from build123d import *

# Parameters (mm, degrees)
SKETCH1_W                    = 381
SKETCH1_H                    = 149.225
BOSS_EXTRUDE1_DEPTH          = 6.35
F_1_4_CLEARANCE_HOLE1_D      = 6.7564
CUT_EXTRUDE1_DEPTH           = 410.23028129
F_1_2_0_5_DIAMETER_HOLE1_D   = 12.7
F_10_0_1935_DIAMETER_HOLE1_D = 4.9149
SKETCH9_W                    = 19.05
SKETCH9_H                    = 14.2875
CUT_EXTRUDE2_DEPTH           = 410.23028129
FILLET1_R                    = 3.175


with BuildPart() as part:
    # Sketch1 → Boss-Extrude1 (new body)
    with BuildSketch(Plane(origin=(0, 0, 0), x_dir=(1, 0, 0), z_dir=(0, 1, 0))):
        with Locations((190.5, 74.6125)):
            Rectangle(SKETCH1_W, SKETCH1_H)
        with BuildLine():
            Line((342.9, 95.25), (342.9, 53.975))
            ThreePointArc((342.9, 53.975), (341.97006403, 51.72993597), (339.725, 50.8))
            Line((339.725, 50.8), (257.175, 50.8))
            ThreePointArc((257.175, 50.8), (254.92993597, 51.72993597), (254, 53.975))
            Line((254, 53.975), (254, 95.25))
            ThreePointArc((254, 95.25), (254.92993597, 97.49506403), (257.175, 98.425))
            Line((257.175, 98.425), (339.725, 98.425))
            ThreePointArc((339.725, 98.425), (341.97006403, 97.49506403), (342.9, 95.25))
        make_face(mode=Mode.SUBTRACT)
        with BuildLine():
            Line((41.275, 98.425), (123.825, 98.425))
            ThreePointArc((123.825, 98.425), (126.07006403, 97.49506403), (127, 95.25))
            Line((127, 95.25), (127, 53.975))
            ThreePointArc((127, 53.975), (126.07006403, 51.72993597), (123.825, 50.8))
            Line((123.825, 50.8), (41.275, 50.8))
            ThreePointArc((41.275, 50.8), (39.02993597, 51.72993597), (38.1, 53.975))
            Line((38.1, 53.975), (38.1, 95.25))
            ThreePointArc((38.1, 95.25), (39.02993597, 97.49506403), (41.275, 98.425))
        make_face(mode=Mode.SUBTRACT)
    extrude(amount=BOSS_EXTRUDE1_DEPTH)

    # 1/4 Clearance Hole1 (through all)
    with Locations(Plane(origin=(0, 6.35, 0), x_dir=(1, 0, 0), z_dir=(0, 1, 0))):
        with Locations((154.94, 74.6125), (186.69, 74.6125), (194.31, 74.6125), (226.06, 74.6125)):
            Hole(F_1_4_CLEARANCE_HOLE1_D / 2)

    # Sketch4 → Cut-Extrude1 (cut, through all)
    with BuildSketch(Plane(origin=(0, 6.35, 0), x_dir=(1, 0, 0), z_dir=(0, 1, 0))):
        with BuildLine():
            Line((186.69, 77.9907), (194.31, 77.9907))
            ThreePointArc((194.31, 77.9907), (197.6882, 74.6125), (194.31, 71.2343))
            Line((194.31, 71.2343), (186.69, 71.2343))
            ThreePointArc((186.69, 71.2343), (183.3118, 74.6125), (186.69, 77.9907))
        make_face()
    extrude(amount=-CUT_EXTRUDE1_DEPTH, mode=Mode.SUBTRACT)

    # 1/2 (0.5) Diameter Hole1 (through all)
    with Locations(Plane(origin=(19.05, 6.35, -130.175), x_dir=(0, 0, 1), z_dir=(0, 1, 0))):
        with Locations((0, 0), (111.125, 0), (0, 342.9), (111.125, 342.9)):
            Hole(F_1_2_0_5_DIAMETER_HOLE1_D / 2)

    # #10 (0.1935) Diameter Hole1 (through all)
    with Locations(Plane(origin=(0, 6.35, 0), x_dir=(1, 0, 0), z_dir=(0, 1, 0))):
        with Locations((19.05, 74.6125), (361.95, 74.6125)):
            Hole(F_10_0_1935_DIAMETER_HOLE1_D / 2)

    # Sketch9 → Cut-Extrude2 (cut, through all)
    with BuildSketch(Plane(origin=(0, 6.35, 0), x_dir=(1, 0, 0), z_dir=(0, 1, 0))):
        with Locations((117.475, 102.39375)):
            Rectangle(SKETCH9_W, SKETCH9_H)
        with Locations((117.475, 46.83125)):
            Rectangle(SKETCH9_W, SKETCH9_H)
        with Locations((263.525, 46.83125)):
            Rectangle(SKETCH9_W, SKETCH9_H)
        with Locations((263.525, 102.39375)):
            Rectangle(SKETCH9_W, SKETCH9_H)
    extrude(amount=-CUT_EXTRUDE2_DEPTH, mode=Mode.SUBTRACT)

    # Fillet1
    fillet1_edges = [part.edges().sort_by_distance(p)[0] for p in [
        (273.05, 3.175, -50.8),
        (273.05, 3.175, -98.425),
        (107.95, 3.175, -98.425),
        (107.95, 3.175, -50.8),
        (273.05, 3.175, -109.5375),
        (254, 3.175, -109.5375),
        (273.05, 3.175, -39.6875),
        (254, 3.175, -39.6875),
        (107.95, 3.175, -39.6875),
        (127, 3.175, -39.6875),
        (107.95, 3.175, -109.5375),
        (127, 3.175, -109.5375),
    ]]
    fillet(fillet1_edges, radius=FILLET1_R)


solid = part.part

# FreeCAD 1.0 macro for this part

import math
import FreeCAD as App
import Part
import Sketcher
from FreeCAD import Vector
Q = App.Units.Quantity


def edges_at(feature, points):
    """Names of the edges that pass closest to the given points."""
    edges = feature.Shape.Edges
    near = lambda p: min(range(len(edges)), key=lambda i: edges[i].distToShape(Part.Vertex(*p))[0])
    return sorted({f"Edge{near(p) + 1}" for p in points})

doc = App.newDocument("Part")
body = doc.addObject("PartDesign::Body", "Body")

# Sketch on XZ plane
sketch1 = body.newObject("Sketcher::SketchObject", "Sketch")
sketch1.AttachmentSupport = (doc.getObject("XZ_Plane"), [""])
sketch1.MapMode = "FlatFace"
sketch1.addGeometry([
    Part.LineSegment(Vector(0, -149.225, 0), Vector(0, 0, 0)),  # 0
    Part.LineSegment(Vector(0, 0, 0), Vector(381, 0, 0)),  # 1
    Part.LineSegment(Vector(381, 0, 0), Vector(381, -149.225, 0)),  # 2
    Part.LineSegment(Vector(381, -149.225, 0), Vector(0, -149.225, 0)),  # 3
    Part.ArcOfCircle(Part.Circle(Vector(339.725, -95.25, 0), Vector(0, 0, 1), 3.175), math.radians(-90), math.radians(0)),  # 4
    Part.LineSegment(Vector(342.9, -95.25, 0), Vector(342.9, -53.975, 0)),  # 5
    Part.ArcOfCircle(Part.Circle(Vector(339.725, -53.975, 0), Vector(0, 0, 1), 3.175), math.radians(0), math.radians(90)),  # 6
    Part.LineSegment(Vector(339.725, -50.8, 0), Vector(257.175, -50.8, 0)),  # 7
    Part.ArcOfCircle(Part.Circle(Vector(257.175, -53.975, 0), Vector(0, 0, 1), 3.175), math.radians(90), math.radians(180)),  # 8
    Part.LineSegment(Vector(254, -53.975, 0), Vector(254, -95.25, 0)),  # 9
    Part.ArcOfCircle(Part.Circle(Vector(257.175, -95.25, 0), Vector(0, 0, 1), 3.175), math.radians(-180), math.radians(-90)),  # 10
    Part.LineSegment(Vector(257.175, -98.425, 0), Vector(339.725, -98.425, 0)),  # 11
    Part.ArcOfCircle(Part.Circle(Vector(41.275, -95.25, 0), Vector(0, 0, 1), 3.175), math.radians(-180), math.radians(-90)),  # 12
    Part.LineSegment(Vector(41.275, -98.425, 0), Vector(123.825, -98.425, 0)),  # 13
    Part.ArcOfCircle(Part.Circle(Vector(123.825, -95.25, 0), Vector(0, 0, 1), 3.175), math.radians(-90), math.radians(0)),  # 14
    Part.LineSegment(Vector(127, -95.25, 0), Vector(127, -53.975, 0)),  # 15
    Part.ArcOfCircle(Part.Circle(Vector(123.825, -53.975, 0), Vector(0, 0, 1), 3.175), math.radians(0), math.radians(90)),  # 16
    Part.LineSegment(Vector(123.825, -50.8, 0), Vector(41.275, -50.8, 0)),  # 17
    Part.ArcOfCircle(Part.Circle(Vector(41.275, -53.975, 0), Vector(0, 0, 1), 3.175), math.radians(90), math.radians(180)),  # 18
    Part.LineSegment(Vector(38.1, -53.975, 0), Vector(38.1, -95.25, 0)),  # 19
], False)
sketch1.addConstraint([
    Sketcher.Constraint("Coincident", 0, 2, 1, 1),
    Sketcher.Constraint("Coincident", 1, 2, 2, 1),
    Sketcher.Constraint("Coincident", 2, 2, 3, 1),
    Sketcher.Constraint("Coincident", 3, 2, 0, 1),
    Sketcher.Constraint("Tangent", 4, 2, 5, 1),
    Sketcher.Constraint("Tangent", 5, 2, 6, 1),
    Sketcher.Constraint("Tangent", 6, 2, 7, 1),
    Sketcher.Constraint("Tangent", 7, 2, 8, 1),
    Sketcher.Constraint("Tangent", 8, 2, 9, 1),
    Sketcher.Constraint("Tangent", 9, 2, 10, 1),
    Sketcher.Constraint("Tangent", 10, 2, 11, 1),
    Sketcher.Constraint("Tangent", 11, 2, 4, 1),
    Sketcher.Constraint("Tangent", 12, 2, 13, 1),
    Sketcher.Constraint("Tangent", 13, 2, 14, 1),
    Sketcher.Constraint("Tangent", 14, 2, 15, 1),
    Sketcher.Constraint("Tangent", 15, 2, 16, 1),
    Sketcher.Constraint("Tangent", 16, 2, 17, 1),
    Sketcher.Constraint("Tangent", 17, 2, 18, 1),
    Sketcher.Constraint("Tangent", 18, 2, 19, 1),
    Sketcher.Constraint("Tangent", 19, 2, 12, 1),
    Sketcher.Constraint("Vertical", 0),
    Sketcher.Constraint("Horizontal", 1),
    Sketcher.Constraint("Vertical", 2),
    Sketcher.Constraint("Horizontal", 3),
    Sketcher.Constraint("Vertical", 5),
    Sketcher.Constraint("Horizontal", 7),
    Sketcher.Constraint("Vertical", 9),
    Sketcher.Constraint("Horizontal", 11),
    Sketcher.Constraint("Horizontal", 13),
    Sketcher.Constraint("Vertical", 15),
    Sketcher.Constraint("Horizontal", 17),
    Sketcher.Constraint("Vertical", 19),
    Sketcher.Constraint("Coincident", 0, 2, -1, 1),
    Sketcher.Constraint("Equal", 4, 6),
    Sketcher.Constraint("Equal", 6, 8),
    Sketcher.Constraint("Equal", 8, 10),
    Sketcher.Constraint("Equal", 10, 12),
    Sketcher.Constraint("Equal", 12, 14),
    Sketcher.Constraint("Equal", 14, 16),
    Sketcher.Constraint("Equal", 16, 18),
    Sketcher.Constraint("Horizontal", 10, 3, 12, 3),
    Sketcher.Constraint("Horizontal", 8, 3, 16, 3),
    Sketcher.Constraint("Equal", 11, 13),
    Sketcher.Constraint("DistanceX", 1, 1, 1, 2, Q("15 in")),
    Sketcher.Constraint("DistanceY", 6, 2, -1, 1, Q("2 in")),
    Sketcher.Constraint("DistanceX", -1, 1, 8, 2, Q("10 in")),
    Sketcher.Constraint("DistanceX", -1, 1, 14, 2, Q("5 in")),
    Sketcher.Constraint("Radius", 4, Q("0.125 in")),
    Sketcher.Constraint("DistanceY", 3, 2, 12, 2, Q("2 in")),
    Sketcher.Constraint("DistanceX", 7, 2, 7, 1, Q("3.25 in")),
    Sketcher.Constraint("DistanceY", 0, 1, 0, 2, Q("5.875 in")),
])
pad1 = body.newObject("PartDesign::Pad", "Pad")
pad1.Profile = sketch1
pad1.Length = Q("0.25 in")
pad1.Reversed = True

# Sketch on XZ plane
sketch2 = body.newObject("Sketcher::SketchObject", "Sketch001")
sketch2.AttachmentSupport = (doc.getObject("XZ_Plane"), [""])
sketch2.MapMode = "FlatFace"
sketch2.AttachmentOffset = App.Placement(Vector(0, 0, -0.25 * 25.4), App.Rotation())
sketch2.addGeometry([
    Part.Circle(Vector(154.94, -74.6125, 0), Vector(0, 0, 1), 3.3782),
    Part.Circle(Vector(186.69, -74.6125, 0), Vector(0, 0, 1), 3.3782),
    Part.Circle(Vector(194.31, -74.6125, 0), Vector(0, 0, 1), 3.3782),
    Part.Circle(Vector(226.06, -74.6125, 0), Vector(0, 0, 1), 3.3782),
], False)
sketch2.addConstraint([
    Sketcher.Constraint("Equal", 0, 1),
    Sketcher.Constraint("Equal", 1, 2),
    Sketcher.Constraint("Equal", 2, 3),
    Sketcher.Constraint("Horizontal", 0, 3, 1, 3),
    Sketcher.Constraint("Horizontal", 1, 3, 2, 3),
    Sketcher.Constraint("Horizontal", 2, 3, 3, 3),
    Sketcher.Constraint("Diameter", 0, Q("0.266 in")),
    Sketcher.Constraint("DistanceX", -1, 1, 0, 3, Q("6.1 in")),
    Sketcher.Constraint("DistanceX", -1, 1, 3, 3, Q("8.9 in")),
    Sketcher.Constraint("DistanceX", 1, 3, 2, 3, Q("0.3 in")),
    Sketcher.Constraint("DistanceX", -1, 1, 1, 3, Q("7.35 in")),
    Sketcher.Constraint("DistanceY", 0, 3, -1, 1, Q("2.9375 in")),
])
doc.recompute()
hole = body.newObject("PartDesign::Hole", "Hole")
hole.Profile = sketch2
hole.ThreadType = "None"
hole.Diameter = Q("0.266 in")
hole.DepthType = "ThroughAll"
hole.Reversed = True

# Sketch on XZ plane
sketch3 = body.newObject("Sketcher::SketchObject", "Sketch002")
sketch3.AttachmentSupport = (doc.getObject("XZ_Plane"), [""])
sketch3.MapMode = "FlatFace"
sketch3.AttachmentOffset = App.Placement(Vector(0, 0, -0.25 * 25.4), App.Rotation())
sketch3.addGeometry([
    Part.LineSegment(Vector(194.31, -77.9907, 0), Vector(186.69, -77.9907, 0)),
    Part.ArcOfCircle(Part.Circle(Vector(186.69, -74.6125, 0), Vector(0, 0, 1), 3.3782), math.radians(90), math.radians(270)),
    Part.LineSegment(Vector(186.69, -71.2343, 0), Vector(194.31, -71.2343, 0)),
    Part.ArcOfCircle(Part.Circle(Vector(194.31, -74.6125, 0), Vector(0, 0, 1), 3.3782), math.radians(-90), math.radians(90)),
], False)
sketch3.addConstraint([
    Sketcher.Constraint("Tangent", 0, 2, 1, 2),
    Sketcher.Constraint("Tangent", 1, 1, 2, 1),
    Sketcher.Constraint("Tangent", 2, 2, 3, 2),
    Sketcher.Constraint("Tangent", 3, 1, 0, 1),
    Sketcher.Constraint("Horizontal", 0),
    Sketcher.Constraint("Horizontal", 2),
    Sketcher.Constraint("DistanceX", 0, 2, 0, 1, Q("0.3 in")),
    Sketcher.Constraint("Radius", 1, Q("0.133 in")),
    Sketcher.Constraint("DistanceX", -1, 1, 1, 3, Q("7.35 in")),
    Sketcher.Constraint("DistanceY", 1, 3, -1, 1, Q("2.9375 in")),
])
pocket1 = body.newObject("PartDesign::Pocket", "Pocket")
pocket1.Profile = sketch3
pocket1.Type = "ThroughAll"
pocket1.Reversed = True

# Sketch on XZ plane
sketch4 = body.newObject("Sketcher::SketchObject", "Sketch003")
sketch4.AttachmentSupport = (doc.getObject("XZ_Plane"), [""])
sketch4.MapMode = "FlatFace"
sketch4.AttachmentOffset = App.Placement(Vector(0, 0, -0.25 * 25.4), App.Rotation())
sketch4.addGeometry([
    Part.Circle(Vector(19.05, -130.175, 0), Vector(0, 0, 1), 6.35),
    Part.Circle(Vector(19.05, -19.05, 0), Vector(0, 0, 1), 6.35),
    Part.Circle(Vector(361.95, -130.175, 0), Vector(0, 0, 1), 6.35),
    Part.Circle(Vector(361.95, -19.05, 0), Vector(0, 0, 1), 6.35),
], False)
sketch4.addConstraint([
    Sketcher.Constraint("Equal", 0, 1),
    Sketcher.Constraint("Equal", 1, 2),
    Sketcher.Constraint("Equal", 2, 3),
    Sketcher.Constraint("Horizontal", 0, 3, 2, 3),
    Sketcher.Constraint("Horizontal", 1, 3, 3, 3),
    Sketcher.Constraint("Vertical", 0, 3, 1, 3),
    Sketcher.Constraint("Vertical", 2, 3, 3, 3),
    Sketcher.Constraint("Diameter", 0, Q("0.5 in")),
    Sketcher.Constraint("DistanceX", 0, 3, 2, 3, Q("13.5 in")),
    Sketcher.Constraint("DistanceX", -1, 1, 0, 3, Q("0.75 in")),
    Sketcher.Constraint("DistanceY", 1, 3, -1, 1, Q("0.75 in")),
    Sketcher.Constraint("DistanceY", 0, 3, -1, 1, Q("5.125 in")),
])
doc.recompute()
hole2 = body.newObject("PartDesign::Hole", "Hole001")
hole2.Profile = sketch4
hole2.ThreadType = "None"
hole2.Diameter = Q("0.5 in")
hole2.DepthType = "ThroughAll"
hole2.Reversed = True

# Sketch on XZ plane
sketch5 = body.newObject("Sketcher::SketchObject", "Sketch004")
sketch5.AttachmentSupport = (doc.getObject("XZ_Plane"), [""])
sketch5.MapMode = "FlatFace"
sketch5.AttachmentOffset = App.Placement(Vector(0, 0, -0.25 * 25.4), App.Rotation())
sketch5.addGeometry([
    Part.Circle(Vector(19.05, -74.6125, 0), Vector(0, 0, 1), 2.45745),
    Part.Circle(Vector(361.95, -74.6125, 0), Vector(0, 0, 1), 2.45745),
], False)
sketch5.addConstraint([
    Sketcher.Constraint("Equal", 0, 1),
    Sketcher.Constraint("Horizontal", 0, 3, 1, 3),
    Sketcher.Constraint("Diameter", 0, Q("0.1935 in")),
    Sketcher.Constraint("DistanceX", 0, 3, 1, 3, Q("13.5 in")),
    Sketcher.Constraint("DistanceX", -1, 1, 0, 3, Q("0.75 in")),
    Sketcher.Constraint("DistanceY", 0, 3, -1, 1, Q("2.9375 in")),
])
doc.recompute()
hole3 = body.newObject("PartDesign::Hole", "Hole002")
hole3.Profile = sketch5
hole3.ThreadType = "None"
hole3.Diameter = Q("0.1935 in")
hole3.DepthType = "ThroughAll"
hole3.Reversed = True

# Sketch on XZ plane
sketch6 = body.newObject("Sketcher::SketchObject", "Sketch005")
sketch6.AttachmentSupport = (doc.getObject("XZ_Plane"), [""])
sketch6.MapMode = "FlatFace"
sketch6.AttachmentOffset = App.Placement(Vector(0, 0, -0.25 * 25.4), App.Rotation())
sketch6.addGeometry([
    Part.LineSegment(Vector(107.95, -109.5375, 0), Vector(107.95, -95.25, 0)),  # 0
    Part.LineSegment(Vector(107.95, -95.25, 0), Vector(127, -95.25, 0)),  # 1
    Part.LineSegment(Vector(127, -95.25, 0), Vector(127, -109.5375, 0)),  # 2
    Part.LineSegment(Vector(127, -109.5375, 0), Vector(107.95, -109.5375, 0)),  # 3
    Part.LineSegment(Vector(107.95, -53.975, 0), Vector(107.95, -39.6875, 0)),  # 4
    Part.LineSegment(Vector(107.95, -39.6875, 0), Vector(127, -39.6875, 0)),  # 5
    Part.LineSegment(Vector(127, -39.6875, 0), Vector(127, -53.975, 0)),  # 6
    Part.LineSegment(Vector(127, -53.975, 0), Vector(107.95, -53.975, 0)),  # 7
    Part.LineSegment(Vector(254, -53.975, 0), Vector(254, -39.6875, 0)),  # 8
    Part.LineSegment(Vector(254, -39.6875, 0), Vector(273.05, -39.6875, 0)),  # 9
    Part.LineSegment(Vector(273.05, -39.6875, 0), Vector(273.05, -53.975, 0)),  # 10
    Part.LineSegment(Vector(273.05, -53.975, 0), Vector(254, -53.975, 0)),  # 11
    Part.LineSegment(Vector(254, -109.5375, 0), Vector(254, -95.25, 0)),  # 12
    Part.LineSegment(Vector(254, -95.25, 0), Vector(273.05, -95.25, 0)),  # 13
    Part.LineSegment(Vector(273.05, -95.25, 0), Vector(273.05, -109.5375, 0)),  # 14
    Part.LineSegment(Vector(273.05, -109.5375, 0), Vector(254, -109.5375, 0)),  # 15
], False)
sketch6.addConstraint([
    Sketcher.Constraint("Coincident", 0, 2, 1, 1),
    Sketcher.Constraint("Coincident", 1, 2, 2, 1),
    Sketcher.Constraint("Coincident", 2, 2, 3, 1),
    Sketcher.Constraint("Coincident", 3, 2, 0, 1),
    Sketcher.Constraint("Coincident", 4, 2, 5, 1),
    Sketcher.Constraint("Coincident", 5, 2, 6, 1),
    Sketcher.Constraint("Coincident", 6, 2, 7, 1),
    Sketcher.Constraint("Coincident", 7, 2, 4, 1),
    Sketcher.Constraint("Coincident", 8, 2, 9, 1),
    Sketcher.Constraint("Coincident", 9, 2, 10, 1),
    Sketcher.Constraint("Coincident", 10, 2, 11, 1),
    Sketcher.Constraint("Coincident", 11, 2, 8, 1),
    Sketcher.Constraint("Coincident", 12, 2, 13, 1),
    Sketcher.Constraint("Coincident", 13, 2, 14, 1),
    Sketcher.Constraint("Coincident", 14, 2, 15, 1),
    Sketcher.Constraint("Coincident", 15, 2, 12, 1),
    Sketcher.Constraint("Vertical", 0),
    Sketcher.Constraint("Horizontal", 1),
    Sketcher.Constraint("Vertical", 2),
    Sketcher.Constraint("Horizontal", 3),
    Sketcher.Constraint("Vertical", 4),
    Sketcher.Constraint("Horizontal", 5),
    Sketcher.Constraint("Vertical", 6),
    Sketcher.Constraint("Horizontal", 7),
    Sketcher.Constraint("Vertical", 8),
    Sketcher.Constraint("Horizontal", 9),
    Sketcher.Constraint("Vertical", 10),
    Sketcher.Constraint("Horizontal", 11),
    Sketcher.Constraint("Vertical", 12),
    Sketcher.Constraint("Horizontal", 13),
    Sketcher.Constraint("Vertical", 14),
    Sketcher.Constraint("Horizontal", 15),
    Sketcher.Constraint("Horizontal", 5, 2, 8, 2),
    Sketcher.Constraint("Horizontal", 7, 2, 10, 2),
    Sketcher.Constraint("Horizontal", 1, 2, 12, 2),
    Sketcher.Constraint("Horizontal", 3, 2, 14, 2),
    Sketcher.Constraint("Vertical", 3, 2, 4, 2),
    Sketcher.Constraint("Vertical", 2, 2, 5, 2),
    Sketcher.Constraint("Vertical", 11, 2, 12, 2),
    Sketcher.Constraint("Vertical", 10, 2, 13, 2),
    Sketcher.Constraint("Equal", 7, 9),
    Sketcher.Constraint("Equal", 2, 4),
    Sketcher.Constraint("DistanceX", -1, 1, 1, 2, Q("5 in")),
    Sketcher.Constraint("DistanceX", -1, 1, 8, 2, Q("10 in")),
    Sketcher.Constraint("DistanceX", 1, 1, 1, 2, Q("0.75 in")),
    Sketcher.Constraint("DistanceY", 0, 1, 0, 2, Q("0.5625 in")),
    Sketcher.Constraint("DistanceY", 0, 2, -1, 1, Q("3.75 in")),
    Sketcher.Constraint("DistanceY", 3, 2, 4, 2, Q("2.75 in")),
])
pocket2 = body.newObject("PartDesign::Pocket", "Pocket001")
pocket2.Profile = sketch6
pocket2.Type = "ThroughAll"
pocket2.Reversed = True
doc.recompute()

fillet = body.newObject("PartDesign::Fillet", "Fillet")
fillet.Base = (pocket2, edges_at(pocket2, [
    (273.05, 3.175, -50.8),
    (273.05, 3.175, -98.425),
    (107.95, 3.175, -98.425),
    (107.95, 3.175, -50.8),
    (273.05, 3.175, -109.537),
    (254, 3.175, -109.537),
    (273.05, 3.175, -39.688),
    (254, 3.175, -39.688),
    (107.95, 3.175, -39.688),
    (127, 3.175, -39.688),
    (107.95, 3.175, -109.537),
    (127, 3.175, -109.537),
]))
fillet.Radius = Q("0.125 in")

doc.recompute()
